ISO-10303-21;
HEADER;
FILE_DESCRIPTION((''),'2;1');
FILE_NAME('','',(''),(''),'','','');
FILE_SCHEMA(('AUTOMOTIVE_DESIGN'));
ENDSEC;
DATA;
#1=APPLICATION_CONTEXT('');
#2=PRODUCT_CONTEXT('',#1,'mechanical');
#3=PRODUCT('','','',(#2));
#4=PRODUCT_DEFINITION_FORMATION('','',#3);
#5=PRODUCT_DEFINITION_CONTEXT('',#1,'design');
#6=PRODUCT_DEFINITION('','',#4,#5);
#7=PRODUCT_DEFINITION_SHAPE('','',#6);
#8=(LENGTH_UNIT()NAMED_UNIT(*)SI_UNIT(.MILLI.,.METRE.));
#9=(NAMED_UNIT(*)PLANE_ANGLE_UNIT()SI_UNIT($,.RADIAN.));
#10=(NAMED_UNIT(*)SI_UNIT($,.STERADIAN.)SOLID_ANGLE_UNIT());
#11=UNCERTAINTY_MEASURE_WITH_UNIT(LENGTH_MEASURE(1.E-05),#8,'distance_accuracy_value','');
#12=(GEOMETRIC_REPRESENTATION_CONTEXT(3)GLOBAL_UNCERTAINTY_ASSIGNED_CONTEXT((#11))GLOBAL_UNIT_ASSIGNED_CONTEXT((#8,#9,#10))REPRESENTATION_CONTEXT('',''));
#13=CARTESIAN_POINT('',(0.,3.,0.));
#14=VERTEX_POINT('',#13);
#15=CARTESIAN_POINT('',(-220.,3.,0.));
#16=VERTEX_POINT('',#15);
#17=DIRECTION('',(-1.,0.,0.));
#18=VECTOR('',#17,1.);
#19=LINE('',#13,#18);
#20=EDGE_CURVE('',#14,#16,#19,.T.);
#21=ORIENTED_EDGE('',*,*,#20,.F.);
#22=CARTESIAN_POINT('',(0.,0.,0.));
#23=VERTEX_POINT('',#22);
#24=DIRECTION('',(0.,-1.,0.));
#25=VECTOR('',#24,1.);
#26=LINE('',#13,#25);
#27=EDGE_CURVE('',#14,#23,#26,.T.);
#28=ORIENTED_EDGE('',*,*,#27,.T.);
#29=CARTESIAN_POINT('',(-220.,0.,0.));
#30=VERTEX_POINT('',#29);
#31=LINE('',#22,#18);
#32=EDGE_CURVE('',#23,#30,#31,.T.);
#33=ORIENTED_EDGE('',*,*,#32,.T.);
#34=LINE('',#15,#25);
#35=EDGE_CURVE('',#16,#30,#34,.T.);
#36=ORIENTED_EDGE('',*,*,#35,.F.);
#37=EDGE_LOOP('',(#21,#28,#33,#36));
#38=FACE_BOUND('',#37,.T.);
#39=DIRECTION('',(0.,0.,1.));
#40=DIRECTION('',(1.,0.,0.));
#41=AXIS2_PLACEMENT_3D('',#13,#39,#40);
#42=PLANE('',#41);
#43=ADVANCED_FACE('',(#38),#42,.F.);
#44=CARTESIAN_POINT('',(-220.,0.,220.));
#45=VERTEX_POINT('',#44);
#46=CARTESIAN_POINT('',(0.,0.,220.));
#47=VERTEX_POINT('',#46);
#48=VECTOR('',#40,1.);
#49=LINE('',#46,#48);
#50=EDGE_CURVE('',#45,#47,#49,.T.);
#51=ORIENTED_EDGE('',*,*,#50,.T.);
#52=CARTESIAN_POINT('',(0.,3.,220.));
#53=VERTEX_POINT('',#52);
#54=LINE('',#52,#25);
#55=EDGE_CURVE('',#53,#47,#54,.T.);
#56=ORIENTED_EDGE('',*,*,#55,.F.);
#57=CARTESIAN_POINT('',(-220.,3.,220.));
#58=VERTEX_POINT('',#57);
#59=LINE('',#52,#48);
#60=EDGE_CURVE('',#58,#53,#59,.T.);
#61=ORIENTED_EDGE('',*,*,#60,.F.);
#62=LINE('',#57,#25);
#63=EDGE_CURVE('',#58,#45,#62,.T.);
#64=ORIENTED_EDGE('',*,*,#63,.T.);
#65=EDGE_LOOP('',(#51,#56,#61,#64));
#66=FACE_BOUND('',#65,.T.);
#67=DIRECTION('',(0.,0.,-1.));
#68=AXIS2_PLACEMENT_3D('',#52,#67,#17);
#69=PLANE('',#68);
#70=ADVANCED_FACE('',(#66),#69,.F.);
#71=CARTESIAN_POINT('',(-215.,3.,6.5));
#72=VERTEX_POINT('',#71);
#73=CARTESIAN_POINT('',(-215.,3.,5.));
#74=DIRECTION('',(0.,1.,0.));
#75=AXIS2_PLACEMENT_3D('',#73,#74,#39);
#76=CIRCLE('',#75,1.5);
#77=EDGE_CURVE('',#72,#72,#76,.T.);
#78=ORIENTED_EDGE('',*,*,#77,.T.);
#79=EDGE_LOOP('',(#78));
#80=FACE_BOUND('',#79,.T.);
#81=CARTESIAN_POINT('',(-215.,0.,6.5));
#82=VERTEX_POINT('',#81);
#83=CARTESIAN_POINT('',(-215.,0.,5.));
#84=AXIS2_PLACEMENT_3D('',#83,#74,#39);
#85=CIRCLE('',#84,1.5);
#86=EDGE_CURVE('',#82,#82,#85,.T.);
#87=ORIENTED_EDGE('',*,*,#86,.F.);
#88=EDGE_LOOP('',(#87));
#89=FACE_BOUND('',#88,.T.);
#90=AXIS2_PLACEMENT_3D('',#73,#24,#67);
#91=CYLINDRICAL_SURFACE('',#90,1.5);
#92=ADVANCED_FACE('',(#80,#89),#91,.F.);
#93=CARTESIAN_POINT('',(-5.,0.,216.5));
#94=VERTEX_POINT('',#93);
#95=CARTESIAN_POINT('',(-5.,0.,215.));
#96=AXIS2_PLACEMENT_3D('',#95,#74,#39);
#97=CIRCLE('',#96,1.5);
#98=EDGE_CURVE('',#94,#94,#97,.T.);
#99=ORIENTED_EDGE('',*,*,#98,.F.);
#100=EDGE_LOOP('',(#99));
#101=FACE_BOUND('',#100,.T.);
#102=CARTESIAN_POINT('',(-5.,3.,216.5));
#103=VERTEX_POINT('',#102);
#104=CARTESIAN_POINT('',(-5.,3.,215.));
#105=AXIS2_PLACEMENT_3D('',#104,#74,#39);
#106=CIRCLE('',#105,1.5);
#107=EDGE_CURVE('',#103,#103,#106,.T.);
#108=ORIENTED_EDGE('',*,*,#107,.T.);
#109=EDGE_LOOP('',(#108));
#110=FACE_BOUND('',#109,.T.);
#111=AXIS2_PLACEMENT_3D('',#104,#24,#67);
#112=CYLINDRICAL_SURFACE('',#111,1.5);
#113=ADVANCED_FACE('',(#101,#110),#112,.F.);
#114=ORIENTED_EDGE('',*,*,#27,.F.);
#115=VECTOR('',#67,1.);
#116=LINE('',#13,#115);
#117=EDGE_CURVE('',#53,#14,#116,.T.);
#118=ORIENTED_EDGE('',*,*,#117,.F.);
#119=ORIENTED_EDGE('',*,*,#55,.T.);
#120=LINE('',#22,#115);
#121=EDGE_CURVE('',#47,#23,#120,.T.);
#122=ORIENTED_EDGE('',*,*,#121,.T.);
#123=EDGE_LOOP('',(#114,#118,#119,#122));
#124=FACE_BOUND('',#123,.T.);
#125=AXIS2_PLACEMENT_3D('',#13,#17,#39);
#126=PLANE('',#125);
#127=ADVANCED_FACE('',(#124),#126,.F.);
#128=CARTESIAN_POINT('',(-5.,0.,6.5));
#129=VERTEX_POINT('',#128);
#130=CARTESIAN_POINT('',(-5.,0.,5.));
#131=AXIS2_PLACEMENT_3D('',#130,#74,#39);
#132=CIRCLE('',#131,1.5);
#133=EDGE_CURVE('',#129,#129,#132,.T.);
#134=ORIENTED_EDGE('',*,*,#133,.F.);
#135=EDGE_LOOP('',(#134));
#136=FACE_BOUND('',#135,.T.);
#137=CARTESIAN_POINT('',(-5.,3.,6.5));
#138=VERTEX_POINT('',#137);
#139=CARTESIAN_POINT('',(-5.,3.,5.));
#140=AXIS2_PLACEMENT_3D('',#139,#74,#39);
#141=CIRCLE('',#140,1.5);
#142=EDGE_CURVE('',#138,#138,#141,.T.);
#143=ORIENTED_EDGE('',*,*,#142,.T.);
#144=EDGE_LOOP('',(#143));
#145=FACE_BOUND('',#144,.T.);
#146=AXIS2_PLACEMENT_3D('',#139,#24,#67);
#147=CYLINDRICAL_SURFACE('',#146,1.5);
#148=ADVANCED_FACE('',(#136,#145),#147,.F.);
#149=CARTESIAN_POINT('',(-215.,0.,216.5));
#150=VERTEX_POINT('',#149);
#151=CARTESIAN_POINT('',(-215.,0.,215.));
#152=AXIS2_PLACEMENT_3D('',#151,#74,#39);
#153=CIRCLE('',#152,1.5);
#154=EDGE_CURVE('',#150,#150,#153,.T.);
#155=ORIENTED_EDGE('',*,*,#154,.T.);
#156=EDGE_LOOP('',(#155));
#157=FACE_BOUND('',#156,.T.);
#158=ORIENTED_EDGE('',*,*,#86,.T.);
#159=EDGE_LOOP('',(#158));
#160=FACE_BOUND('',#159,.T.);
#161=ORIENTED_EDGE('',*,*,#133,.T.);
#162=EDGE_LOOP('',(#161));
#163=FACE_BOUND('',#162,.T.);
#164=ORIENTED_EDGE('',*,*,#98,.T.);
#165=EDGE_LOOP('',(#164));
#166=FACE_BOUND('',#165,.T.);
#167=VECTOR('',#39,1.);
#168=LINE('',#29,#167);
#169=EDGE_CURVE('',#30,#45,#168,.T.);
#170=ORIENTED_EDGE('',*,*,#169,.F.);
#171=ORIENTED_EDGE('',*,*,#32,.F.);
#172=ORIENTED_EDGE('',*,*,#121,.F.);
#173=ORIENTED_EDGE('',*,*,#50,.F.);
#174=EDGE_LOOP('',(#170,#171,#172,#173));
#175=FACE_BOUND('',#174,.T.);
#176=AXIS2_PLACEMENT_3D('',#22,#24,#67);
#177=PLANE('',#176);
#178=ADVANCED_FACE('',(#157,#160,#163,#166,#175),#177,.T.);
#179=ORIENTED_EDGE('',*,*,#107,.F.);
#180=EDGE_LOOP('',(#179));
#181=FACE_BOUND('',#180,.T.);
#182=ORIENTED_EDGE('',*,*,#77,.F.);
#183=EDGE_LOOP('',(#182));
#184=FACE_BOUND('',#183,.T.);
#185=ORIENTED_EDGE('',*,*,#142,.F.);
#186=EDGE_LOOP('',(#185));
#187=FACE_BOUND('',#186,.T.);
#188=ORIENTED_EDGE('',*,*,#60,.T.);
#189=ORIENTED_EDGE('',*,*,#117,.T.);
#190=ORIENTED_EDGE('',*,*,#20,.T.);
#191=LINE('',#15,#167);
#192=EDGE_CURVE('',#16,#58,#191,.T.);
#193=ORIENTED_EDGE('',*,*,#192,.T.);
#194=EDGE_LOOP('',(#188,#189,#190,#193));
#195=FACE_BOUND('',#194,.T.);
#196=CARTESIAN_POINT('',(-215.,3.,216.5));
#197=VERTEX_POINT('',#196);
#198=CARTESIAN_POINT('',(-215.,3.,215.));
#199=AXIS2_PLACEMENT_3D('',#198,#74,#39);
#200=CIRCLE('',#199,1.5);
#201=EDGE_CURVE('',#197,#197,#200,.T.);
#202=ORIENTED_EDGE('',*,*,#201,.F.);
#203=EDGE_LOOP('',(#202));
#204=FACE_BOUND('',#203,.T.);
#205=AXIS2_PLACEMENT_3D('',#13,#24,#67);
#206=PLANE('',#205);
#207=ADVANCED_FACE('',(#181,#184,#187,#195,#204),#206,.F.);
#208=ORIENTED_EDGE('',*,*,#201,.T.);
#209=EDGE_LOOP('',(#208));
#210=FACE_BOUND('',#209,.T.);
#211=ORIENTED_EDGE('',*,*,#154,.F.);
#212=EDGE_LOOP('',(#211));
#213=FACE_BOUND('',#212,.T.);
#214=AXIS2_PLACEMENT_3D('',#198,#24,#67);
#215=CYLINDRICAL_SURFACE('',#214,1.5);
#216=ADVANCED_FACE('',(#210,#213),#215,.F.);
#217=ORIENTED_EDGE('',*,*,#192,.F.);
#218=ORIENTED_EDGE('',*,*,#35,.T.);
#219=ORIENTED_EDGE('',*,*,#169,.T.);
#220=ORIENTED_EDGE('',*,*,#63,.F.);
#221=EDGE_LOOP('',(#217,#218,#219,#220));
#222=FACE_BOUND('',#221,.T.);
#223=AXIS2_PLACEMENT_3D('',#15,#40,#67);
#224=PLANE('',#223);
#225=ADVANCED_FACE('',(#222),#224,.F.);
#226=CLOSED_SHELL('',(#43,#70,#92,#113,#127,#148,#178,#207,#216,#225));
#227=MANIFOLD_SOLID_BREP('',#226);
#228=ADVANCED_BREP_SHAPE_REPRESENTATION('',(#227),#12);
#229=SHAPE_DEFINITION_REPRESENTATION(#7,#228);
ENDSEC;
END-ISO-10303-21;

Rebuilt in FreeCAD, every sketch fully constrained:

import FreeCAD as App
import Part
import Sketcher


def add_polygon(sketch, points):
    """Adds a closed chain of lines whose ends are joined by coincident constraints."""
    first, n = sketch.GeometryCount, len(points)
    for a, b in zip(points, points[1:] + points[:1]):
        sketch.addGeometry(Part.LineSegment(App.Vector(*a, 0), App.Vector(*b, 0)), False)
    for i in range(n):
        sketch.addConstraint(Sketcher.Constraint("Coincident", first + i, 2, first + (i + 1) % n, 1))

doc = App.newDocument("Part")
body = doc.addObject("PartDesign::Body", "Body")

# Sketch on XZ plane
sketch1 = doc.addObject("Sketcher::SketchObject", "Sketch")
body.addObject(sketch1)
sketch1.AttachmentSupport = (doc.XZ_Plane, [""])
sketch1.MapMode = "FlatFace"
add_polygon(sketch1, [(-220, 0), (-220, 220), (0, 220), (0, 0)])  # lines 0-3
sketch1.addGeometry(Part.Circle(App.Vector(-215, 215, 0), App.Vector(0, 0, 1), 1.5), False)  # 4
sketch1.addGeometry(Part.Circle(App.Vector(-5, 215, 0), App.Vector(0, 0, 1), 1.5), False)  # 5
sketch1.addGeometry(Part.Circle(App.Vector(-215, 5, 0), App.Vector(0, 0, 1), 1.5), False)  # 6
sketch1.addGeometry(Part.Circle(App.Vector(-5, 5, 0), App.Vector(0, 0, 1), 1.5), False)  # 7
sketch1.addConstraint([
    Sketcher.Constraint("Vertical", 0),
    Sketcher.Constraint("Horizontal", 1),
    Sketcher.Constraint("Vertical", 2),
    Sketcher.Constraint("Horizontal", 3),
    Sketcher.Constraint("Coincident", 2, 2, -1, 1),
    Sketcher.Constraint("Equal", 4, 5),
    Sketcher.Constraint("Equal", 5, 6),
    Sketcher.Constraint("Equal", 6, 7),
    Sketcher.Constraint("Horizontal", 4, 3, 5, 3),
    Sketcher.Constraint("Horizontal", 6, 3, 7, 3),
    Sketcher.Constraint("Vertical", 4, 3, 6, 3),
    Sketcher.Constraint("Vertical", 5, 3, 7, 3),
    Sketcher.Constraint("Equal", 3, 0),
    Sketcher.Constraint("Diameter", 4, 3.0),
    Sketcher.Constraint("DistanceX", 1, 1, 1, 2, 220.0),
    Sketcher.Constraint("DistanceX", 4, 3, -1, 1, 215.0),
    Sketcher.Constraint("DistanceY", -1, 1, 4, 3, 215.0),
    Sketcher.Constraint("DistanceX", 5, 3, -1, 1, 5.0),
    Sketcher.Constraint("DistanceY", -1, 1, 6, 3, 5.0),
])
pad1 = doc.addObject("PartDesign::Pad", "Pad")
body.addObject(pad1)
pad1.Profile = sketch1
pad1.Length = 3
pad1.Reversed = True

doc.recompute()
